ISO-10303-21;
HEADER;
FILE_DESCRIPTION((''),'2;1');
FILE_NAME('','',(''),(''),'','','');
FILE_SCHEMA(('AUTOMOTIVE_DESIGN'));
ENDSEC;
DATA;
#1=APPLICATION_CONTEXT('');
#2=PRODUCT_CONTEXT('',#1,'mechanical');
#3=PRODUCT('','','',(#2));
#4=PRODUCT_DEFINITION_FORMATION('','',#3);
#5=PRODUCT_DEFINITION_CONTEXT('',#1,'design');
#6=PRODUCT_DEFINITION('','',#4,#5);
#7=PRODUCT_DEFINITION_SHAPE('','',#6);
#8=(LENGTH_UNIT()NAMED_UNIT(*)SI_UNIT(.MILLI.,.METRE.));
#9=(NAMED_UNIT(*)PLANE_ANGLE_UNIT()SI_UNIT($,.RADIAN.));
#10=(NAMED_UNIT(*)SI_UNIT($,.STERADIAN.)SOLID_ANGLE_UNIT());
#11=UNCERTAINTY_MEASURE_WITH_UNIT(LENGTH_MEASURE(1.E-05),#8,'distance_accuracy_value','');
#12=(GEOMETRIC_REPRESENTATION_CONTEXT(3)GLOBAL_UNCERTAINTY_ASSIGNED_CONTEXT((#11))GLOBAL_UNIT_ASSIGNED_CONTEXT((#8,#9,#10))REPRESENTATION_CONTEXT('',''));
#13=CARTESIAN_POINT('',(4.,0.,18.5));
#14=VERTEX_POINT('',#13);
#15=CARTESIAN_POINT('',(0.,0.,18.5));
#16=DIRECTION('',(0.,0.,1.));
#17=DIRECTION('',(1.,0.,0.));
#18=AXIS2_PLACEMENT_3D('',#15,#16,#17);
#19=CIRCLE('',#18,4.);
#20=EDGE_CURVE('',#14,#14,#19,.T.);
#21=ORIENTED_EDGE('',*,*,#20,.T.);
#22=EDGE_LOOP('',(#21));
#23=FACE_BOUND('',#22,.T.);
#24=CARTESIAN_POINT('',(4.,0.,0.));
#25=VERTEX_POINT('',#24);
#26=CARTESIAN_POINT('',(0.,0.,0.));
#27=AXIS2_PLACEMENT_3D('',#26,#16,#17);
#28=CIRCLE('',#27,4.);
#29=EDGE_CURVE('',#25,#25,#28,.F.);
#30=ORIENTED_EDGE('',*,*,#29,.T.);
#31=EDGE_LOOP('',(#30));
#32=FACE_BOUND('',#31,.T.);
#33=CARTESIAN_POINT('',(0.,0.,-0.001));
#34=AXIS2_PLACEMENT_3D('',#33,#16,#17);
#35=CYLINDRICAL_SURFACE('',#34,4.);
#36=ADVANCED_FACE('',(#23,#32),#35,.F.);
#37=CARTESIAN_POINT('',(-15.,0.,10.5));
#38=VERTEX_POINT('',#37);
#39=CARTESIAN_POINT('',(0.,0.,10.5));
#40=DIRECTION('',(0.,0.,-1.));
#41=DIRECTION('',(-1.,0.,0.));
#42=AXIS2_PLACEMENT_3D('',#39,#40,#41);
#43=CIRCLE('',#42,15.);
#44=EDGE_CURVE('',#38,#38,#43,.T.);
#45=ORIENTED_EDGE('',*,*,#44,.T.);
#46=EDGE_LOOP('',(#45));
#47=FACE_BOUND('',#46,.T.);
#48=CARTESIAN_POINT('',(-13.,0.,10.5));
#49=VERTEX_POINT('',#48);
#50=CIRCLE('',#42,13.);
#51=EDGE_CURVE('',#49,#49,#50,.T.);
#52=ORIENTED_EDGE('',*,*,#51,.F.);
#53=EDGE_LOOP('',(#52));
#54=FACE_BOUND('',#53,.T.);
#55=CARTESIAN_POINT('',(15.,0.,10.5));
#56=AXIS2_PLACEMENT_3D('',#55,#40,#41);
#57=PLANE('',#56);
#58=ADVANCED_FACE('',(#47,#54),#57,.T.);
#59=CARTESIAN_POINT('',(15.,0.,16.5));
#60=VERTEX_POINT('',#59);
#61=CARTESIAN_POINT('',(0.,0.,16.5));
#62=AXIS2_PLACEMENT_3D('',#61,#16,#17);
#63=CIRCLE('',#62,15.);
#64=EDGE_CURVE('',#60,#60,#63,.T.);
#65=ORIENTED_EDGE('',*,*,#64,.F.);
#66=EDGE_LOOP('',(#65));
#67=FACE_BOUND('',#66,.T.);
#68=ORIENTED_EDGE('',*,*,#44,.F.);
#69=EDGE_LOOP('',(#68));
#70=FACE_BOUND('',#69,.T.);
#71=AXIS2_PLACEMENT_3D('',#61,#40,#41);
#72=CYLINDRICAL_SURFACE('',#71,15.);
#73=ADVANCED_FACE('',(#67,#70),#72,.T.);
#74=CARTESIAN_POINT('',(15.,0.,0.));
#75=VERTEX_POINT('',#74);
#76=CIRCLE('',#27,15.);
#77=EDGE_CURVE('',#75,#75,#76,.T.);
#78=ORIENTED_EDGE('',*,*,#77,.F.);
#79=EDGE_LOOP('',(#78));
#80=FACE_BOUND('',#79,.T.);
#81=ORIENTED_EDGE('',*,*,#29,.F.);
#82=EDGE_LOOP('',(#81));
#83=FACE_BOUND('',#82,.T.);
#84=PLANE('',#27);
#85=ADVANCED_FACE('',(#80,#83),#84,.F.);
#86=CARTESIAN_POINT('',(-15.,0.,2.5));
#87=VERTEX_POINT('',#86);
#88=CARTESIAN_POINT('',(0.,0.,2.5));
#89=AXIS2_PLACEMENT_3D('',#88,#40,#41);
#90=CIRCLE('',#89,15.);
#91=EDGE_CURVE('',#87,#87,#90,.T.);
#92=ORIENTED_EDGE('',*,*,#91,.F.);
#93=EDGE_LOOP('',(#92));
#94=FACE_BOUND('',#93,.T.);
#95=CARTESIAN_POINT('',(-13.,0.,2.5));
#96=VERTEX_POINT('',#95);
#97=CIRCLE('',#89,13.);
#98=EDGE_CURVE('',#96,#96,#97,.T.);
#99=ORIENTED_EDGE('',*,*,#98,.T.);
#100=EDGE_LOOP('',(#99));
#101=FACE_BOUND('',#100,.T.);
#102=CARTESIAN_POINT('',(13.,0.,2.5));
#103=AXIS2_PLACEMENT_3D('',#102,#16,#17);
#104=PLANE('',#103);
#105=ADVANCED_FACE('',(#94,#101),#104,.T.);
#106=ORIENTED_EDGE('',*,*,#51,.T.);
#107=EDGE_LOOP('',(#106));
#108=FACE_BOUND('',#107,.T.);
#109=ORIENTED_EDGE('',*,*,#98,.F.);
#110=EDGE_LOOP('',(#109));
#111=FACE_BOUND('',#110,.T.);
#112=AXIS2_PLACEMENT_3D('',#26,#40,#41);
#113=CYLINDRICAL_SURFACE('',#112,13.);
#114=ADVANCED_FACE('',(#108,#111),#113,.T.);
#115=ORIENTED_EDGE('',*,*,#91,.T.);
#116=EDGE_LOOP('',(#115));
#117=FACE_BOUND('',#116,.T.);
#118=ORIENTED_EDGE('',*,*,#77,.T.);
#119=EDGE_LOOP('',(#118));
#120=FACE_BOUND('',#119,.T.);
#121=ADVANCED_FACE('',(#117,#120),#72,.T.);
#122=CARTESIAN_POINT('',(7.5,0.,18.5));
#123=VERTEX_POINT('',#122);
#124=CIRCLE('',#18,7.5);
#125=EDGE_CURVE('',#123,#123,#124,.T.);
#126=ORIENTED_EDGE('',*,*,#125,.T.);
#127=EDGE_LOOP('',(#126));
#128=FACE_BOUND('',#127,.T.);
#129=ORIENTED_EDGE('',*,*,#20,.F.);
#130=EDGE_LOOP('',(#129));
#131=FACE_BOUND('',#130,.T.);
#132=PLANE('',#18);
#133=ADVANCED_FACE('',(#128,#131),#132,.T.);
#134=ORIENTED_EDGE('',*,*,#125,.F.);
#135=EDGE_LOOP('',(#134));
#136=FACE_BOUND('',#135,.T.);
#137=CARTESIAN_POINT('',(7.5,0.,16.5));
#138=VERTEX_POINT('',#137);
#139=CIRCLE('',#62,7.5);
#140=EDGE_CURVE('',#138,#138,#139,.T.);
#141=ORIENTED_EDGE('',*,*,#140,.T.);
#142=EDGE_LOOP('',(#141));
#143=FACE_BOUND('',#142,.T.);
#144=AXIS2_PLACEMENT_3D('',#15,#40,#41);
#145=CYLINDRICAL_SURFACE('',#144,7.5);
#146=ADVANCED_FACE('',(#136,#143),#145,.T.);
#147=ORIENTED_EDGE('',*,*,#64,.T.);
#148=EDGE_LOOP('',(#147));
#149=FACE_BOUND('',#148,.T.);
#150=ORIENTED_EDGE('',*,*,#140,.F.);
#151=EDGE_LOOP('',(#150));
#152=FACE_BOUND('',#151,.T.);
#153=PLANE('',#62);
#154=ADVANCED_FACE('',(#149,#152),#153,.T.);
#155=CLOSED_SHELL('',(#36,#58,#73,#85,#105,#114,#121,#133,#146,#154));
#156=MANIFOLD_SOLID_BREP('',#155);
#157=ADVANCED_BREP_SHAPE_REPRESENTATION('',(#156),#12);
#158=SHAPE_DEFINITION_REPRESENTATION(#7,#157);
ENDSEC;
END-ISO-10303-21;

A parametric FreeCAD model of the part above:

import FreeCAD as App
import Part
import Sketcher
from FreeCAD import Vector

doc = App.newDocument("Part")
body = doc.addObject("PartDesign::Body", "Body")

sketch1 = body.newObject("Sketcher::SketchObject", "Sketch")
sketch1.AttachmentSupport = (doc.getObject("XY_Plane"), [""])
sketch1.MapMode = "FlatFace"
sketch1.addGeometry(Part.Circle(Vector(0, 0, 0), Vector(0, 0, 1), 15), False)
sketch1.addConstraint(Sketcher.Constraint("Coincident", 0, 3, -1, 1))
sketch1.addConstraint(Sketcher.Constraint("Diameter", 0, 30.0))
pad1 = body.newObject("PartDesign::Pad", "Pad")
pad1.Profile = sketch1
pad1.Length = 16.5

sketch2 = body.newObject("Sketcher::SketchObject", "Sketch001")
sketch2.AttachmentSupport = (doc.getObject("XY_Plane"), [""])
sketch2.MapMode = "FlatFace"
sketch2.AttachmentOffset = App.Placement(Vector(0, 0, 16.5), App.Rotation())
sketch2.addGeometry(Part.Circle(Vector(0, 0, 0), Vector(0, 0, 1), 4), False)
sketch2.addConstraint(Sketcher.Constraint("Coincident", 0, 3, -1, 1))
sketch2.addConstraint(Sketcher.Constraint("Diameter", 0, 8.0))
pocket1 = body.newObject("PartDesign::Pocket", "Pocket")
pocket1.Profile = sketch2
pocket1.Type = "UpToFirst"

sketch3 = body.newObject("Sketcher::SketchObject", "Sketch002")
sketch3.AttachmentSupport = (doc.getObject("XY_Plane"), [""])
sketch3.MapMode = "FlatFace"
sketch3.AttachmentOffset = App.Placement(Vector(0, 0, 18.5), App.Rotation())
sketch3.addGeometry(Part.Circle(Vector(0, 0, 0), Vector(0, 0, 1), 7.5), False)
sketch3.addGeometry(Part.Circle(Vector(0, 0, 0), Vector(0, 0, 1), 4), False)
sketch3.addConstraint(Sketcher.Constraint("Coincident", 0, 3, -1, 1))
sketch3.addConstraint(Sketcher.Constraint("Coincident", 1, 3, -1, 1))
sketch3.addConstraint(Sketcher.Constraint("Diameter", 0, 15.0))
sketch3.addConstraint(Sketcher.Constraint("Diameter", 1, 8.0))
pad2 = body.newObject("PartDesign::Pad", "Pad001")
pad2.Profile = sketch3
pad2.Length = 2
pad2.Reversed = True

sketch4 = body.newObject("Sketcher::SketchObject", "Sketch003")
sketch4.AttachmentSupport = (doc.getObject("XZ_Plane"), [""])
sketch4.MapMode = "FlatFace"
sketch4.addGeometry(Part.LineSegment(Vector(15, 10.5, 0), Vector(15, 2.5, 0)), False)
sketch4.addGeometry(Part.LineSegment(Vector(15, 2.5, 0), Vector(13, 2.5, 0)), False)
sketch4.addGeometry(Part.LineSegment(Vector(13, 2.5, 0), Vector(13, 10.5, 0)), False)
sketch4.addGeometry(Part.LineSegment(Vector(13, 10.5, 0), Vector(15, 10.5, 0)), False)
sketch4.addConstraint(Sketcher.Constraint("Coincident", 0, 2, 1, 1))
sketch4.addConstraint(Sketcher.Constraint("Coincident", 1, 2, 2, 1))
sketch4.addConstraint(Sketcher.Constraint("Coincident", 2, 2, 3, 1))
sketch4.addConstraint(Sketcher.Constraint("Coincident", 3, 2, 0, 1))
sketch4.addConstraint(Sketcher.Constraint("Vertical", 0))
sketch4.addConstraint(Sketcher.Constraint("Horizontal", 1))
sketch4.addConstraint(Sketcher.Constraint("Vertical", 2))
sketch4.addConstraint(Sketcher.Constraint("Horizontal", 3))
sketch4.addConstraint(Sketcher.Constraint("DistanceX", 1, 2, 1, 1, 2.0))
sketch4.addConstraint(Sketcher.Constraint("DistanceY", 0, 2, 0, 1, 8.0))
sketch4.addConstraint(Sketcher.Constraint("DistanceX", -1, 1, 0, 2, 15.0))
sketch4.addConstraint(Sketcher.Constraint("DistanceY", -1, 1, 0, 2, 2.5))
groove = body.newObject("PartDesign::Groove", "Groove")
groove.Profile = sketch4
groove.ReferenceAxis = (sketch4, ["V_Axis"])
groove.Angle = 360

doc.recompute()
